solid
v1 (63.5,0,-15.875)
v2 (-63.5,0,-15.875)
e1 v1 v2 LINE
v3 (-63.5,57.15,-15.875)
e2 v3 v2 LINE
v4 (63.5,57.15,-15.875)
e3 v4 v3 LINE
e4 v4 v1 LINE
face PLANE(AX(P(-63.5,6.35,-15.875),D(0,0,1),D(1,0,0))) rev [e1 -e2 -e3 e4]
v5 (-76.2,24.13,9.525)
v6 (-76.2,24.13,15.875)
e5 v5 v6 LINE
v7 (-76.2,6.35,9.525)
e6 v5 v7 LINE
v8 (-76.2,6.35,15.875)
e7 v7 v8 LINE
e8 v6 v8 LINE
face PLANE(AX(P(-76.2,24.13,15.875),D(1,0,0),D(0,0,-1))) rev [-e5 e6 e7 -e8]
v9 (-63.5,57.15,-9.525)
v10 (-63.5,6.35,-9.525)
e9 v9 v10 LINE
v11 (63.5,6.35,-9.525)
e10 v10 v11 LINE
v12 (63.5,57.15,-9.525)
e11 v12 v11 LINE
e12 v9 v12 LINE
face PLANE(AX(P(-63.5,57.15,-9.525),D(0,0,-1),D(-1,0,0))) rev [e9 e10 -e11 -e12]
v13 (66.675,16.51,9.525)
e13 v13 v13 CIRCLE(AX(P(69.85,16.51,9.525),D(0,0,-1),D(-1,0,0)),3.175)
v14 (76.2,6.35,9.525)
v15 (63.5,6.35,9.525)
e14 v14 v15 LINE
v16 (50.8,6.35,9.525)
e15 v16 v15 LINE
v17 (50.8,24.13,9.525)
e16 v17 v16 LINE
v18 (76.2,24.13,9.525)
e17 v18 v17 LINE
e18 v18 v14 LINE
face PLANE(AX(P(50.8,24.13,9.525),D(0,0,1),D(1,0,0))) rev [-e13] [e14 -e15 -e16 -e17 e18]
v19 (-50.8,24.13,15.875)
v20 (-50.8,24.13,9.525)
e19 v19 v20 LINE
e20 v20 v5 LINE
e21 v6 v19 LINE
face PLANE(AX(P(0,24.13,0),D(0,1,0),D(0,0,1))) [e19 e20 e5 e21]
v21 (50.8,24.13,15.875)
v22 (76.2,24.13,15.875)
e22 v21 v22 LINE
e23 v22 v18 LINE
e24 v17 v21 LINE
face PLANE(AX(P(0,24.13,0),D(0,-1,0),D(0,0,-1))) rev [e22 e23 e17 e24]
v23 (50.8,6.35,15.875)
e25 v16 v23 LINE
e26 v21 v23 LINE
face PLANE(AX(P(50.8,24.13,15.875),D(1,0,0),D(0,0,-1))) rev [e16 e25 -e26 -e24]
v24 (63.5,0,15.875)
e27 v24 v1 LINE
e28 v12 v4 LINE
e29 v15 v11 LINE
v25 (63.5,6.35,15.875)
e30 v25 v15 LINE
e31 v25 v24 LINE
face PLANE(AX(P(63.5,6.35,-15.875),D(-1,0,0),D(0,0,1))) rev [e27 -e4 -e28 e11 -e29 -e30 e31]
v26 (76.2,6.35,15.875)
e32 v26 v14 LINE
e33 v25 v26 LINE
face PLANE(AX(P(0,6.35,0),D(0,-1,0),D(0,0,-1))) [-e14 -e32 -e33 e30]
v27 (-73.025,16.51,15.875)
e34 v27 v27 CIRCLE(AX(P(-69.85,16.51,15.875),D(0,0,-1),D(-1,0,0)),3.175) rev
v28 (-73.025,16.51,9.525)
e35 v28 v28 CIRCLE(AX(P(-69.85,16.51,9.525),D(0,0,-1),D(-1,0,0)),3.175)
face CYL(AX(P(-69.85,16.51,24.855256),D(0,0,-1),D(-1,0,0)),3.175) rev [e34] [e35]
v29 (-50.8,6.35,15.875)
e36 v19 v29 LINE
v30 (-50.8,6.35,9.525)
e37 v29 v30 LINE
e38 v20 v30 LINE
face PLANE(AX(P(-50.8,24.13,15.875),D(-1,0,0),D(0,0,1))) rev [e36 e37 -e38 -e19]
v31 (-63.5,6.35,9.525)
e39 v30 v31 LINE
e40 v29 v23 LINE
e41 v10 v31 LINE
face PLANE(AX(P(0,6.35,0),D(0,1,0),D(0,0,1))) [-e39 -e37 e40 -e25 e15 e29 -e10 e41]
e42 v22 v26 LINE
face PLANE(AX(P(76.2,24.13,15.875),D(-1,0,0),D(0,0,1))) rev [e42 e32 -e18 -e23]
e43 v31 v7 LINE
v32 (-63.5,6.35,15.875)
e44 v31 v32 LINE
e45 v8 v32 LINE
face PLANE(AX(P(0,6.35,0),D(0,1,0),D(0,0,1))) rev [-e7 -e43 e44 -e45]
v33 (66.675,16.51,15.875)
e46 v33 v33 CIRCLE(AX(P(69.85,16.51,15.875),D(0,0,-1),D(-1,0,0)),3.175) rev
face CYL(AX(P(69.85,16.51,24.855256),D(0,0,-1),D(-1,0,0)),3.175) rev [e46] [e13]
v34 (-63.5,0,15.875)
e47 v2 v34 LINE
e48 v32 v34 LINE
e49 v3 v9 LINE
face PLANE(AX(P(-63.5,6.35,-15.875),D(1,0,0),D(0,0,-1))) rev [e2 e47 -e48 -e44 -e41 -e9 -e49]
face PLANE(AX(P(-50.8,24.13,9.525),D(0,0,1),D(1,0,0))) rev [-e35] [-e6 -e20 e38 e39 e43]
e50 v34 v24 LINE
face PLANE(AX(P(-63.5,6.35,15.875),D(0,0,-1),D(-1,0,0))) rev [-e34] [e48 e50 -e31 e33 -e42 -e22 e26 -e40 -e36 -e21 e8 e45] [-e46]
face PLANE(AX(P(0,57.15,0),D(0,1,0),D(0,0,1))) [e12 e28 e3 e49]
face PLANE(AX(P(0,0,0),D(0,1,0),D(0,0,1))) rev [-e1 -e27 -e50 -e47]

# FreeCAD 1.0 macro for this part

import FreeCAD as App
import Part
import Sketcher
from FreeCAD import Vector
Q = App.Units.Quantity

doc = App.newDocument("Part")
body = doc.addObject("PartDesign::Body", "Body")

sketch1 = body.newObject("Sketcher::SketchObject", "Sketch")
sketch1.AttachmentSupport = (doc.getObject("XZ_Plane"), [""])
sketch1.MapMode = "FlatFace"
sketch1.addGeometry([
    Part.LineSegment(Vector(-63.5, -15.875, 0), Vector(-63.5, 15.875, 0)),
    Part.LineSegment(Vector(-63.5, 15.875, 0), Vector(63.5, 15.875, 0)),
    Part.LineSegment(Vector(63.5, 15.875, 0), Vector(63.5, -15.875, 0)),
    Part.LineSegment(Vector(63.5, -15.875, 0), Vector(-63.5, -15.875, 0)),
], False)
sketch1.addConstraint([
    Sketcher.Constraint("Coincident", 0, 2, 1, 1),
    Sketcher.Constraint("Coincident", 1, 2, 2, 1),
    Sketcher.Constraint("Coincident", 2, 2, 3, 1),
    Sketcher.Constraint("Coincident", 3, 2, 0, 1),
    Sketcher.Constraint("Vertical", 0),
    Sketcher.Constraint("Horizontal", 1),
    Sketcher.Constraint("Vertical", 2),
    Sketcher.Constraint("Horizontal", 3),
    Sketcher.Constraint("Symmetric", 0, 2, 2, 2, -1, 1),
    Sketcher.Constraint("DistanceX", 1, 1, 1, 2, Q("5 in")),
    Sketcher.Constraint("DistanceY", 0, 1, 0, 2, Q("1.25 in")),
])
pad1 = body.newObject("PartDesign::Pad", "Pad")
pad1.Profile = sketch1
pad1.Length = Q("0.25 in")
pad1.Reversed = True

sketch2 = body.newObject("Sketcher::SketchObject", "Sketch001")
sketch2.AttachmentSupport = (doc.getObject("XZ_Plane"), [""])
sketch2.MapMode = "FlatFace"
sketch2.AttachmentOffset = App.Placement(Vector(0, 0, -0.25 * 25.4), App.Rotation())
sketch2.addGeometry([
    Part.LineSegment(Vector(-76.2, 9.525, 0), Vector(-76.2, 15.875, 0)),
    Part.LineSegment(Vector(-76.2, 15.875, 0), Vector(-50.8, 15.875, 0)),
    Part.LineSegment(Vector(-50.8, 15.875, 0), Vector(-50.8, 9.525, 0)),
    Part.LineSegment(Vector(-50.8, 9.525, 0), Vector(-76.2, 9.525, 0)),
    Part.LineSegment(Vector(50.8, 9.525, 0), Vector(50.8, 15.875, 0)),
    Part.LineSegment(Vector(50.8, 15.875, 0), Vector(76.2, 15.875, 0)),
    Part.LineSegment(Vector(76.2, 15.875, 0), Vector(76.2, 9.525, 0)),
    Part.LineSegment(Vector(76.2, 9.525, 0), Vector(50.8, 9.525, 0)),
], False)
sketch2.addConstraint([
    Sketcher.Constraint("Coincident", 0, 2, 1, 1),
    Sketcher.Constraint("Coincident", 1, 2, 2, 1),
    Sketcher.Constraint("Coincident", 2, 2, 3, 1),
    Sketcher.Constraint("Coincident", 3, 2, 0, 1),
    Sketcher.Constraint("Coincident", 4, 2, 5, 1),
    Sketcher.Constraint("Coincident", 5, 2, 6, 1),
    Sketcher.Constraint("Coincident", 6, 2, 7, 1),
    Sketcher.Constraint("Coincident", 7, 2, 4, 1),
    Sketcher.Constraint("Vertical", 0),
    Sketcher.Constraint("Horizontal", 1),
    Sketcher.Constraint("Vertical", 2),
    Sketcher.Constraint("Horizontal", 3),
    Sketcher.Constraint("Vertical", 4),
    Sketcher.Constraint("Horizontal", 5),
    Sketcher.Constraint("Vertical", 6),
    Sketcher.Constraint("Horizontal", 7),
    Sketcher.Constraint("Symmetric", 1, 2, 4, 2, -2),
    Sketcher.Constraint("Symmetric", 3, 2, 6, 2, -2),
    Sketcher.Constraint("DistanceX", 1, 1, 1, 2, Q("1 in")),
    Sketcher.Constraint("DistanceX", 0, 2, -1, 1, Q("3 in")),
    Sketcher.Constraint("DistanceY", 0, 1, 0, 2, Q("0.25 in")),
    Sketcher.Constraint("DistanceY", -1, 1, 0, 2, Q("0.625 in")),
])
pad2 = body.newObject("PartDesign::Pad", "Pad001")
pad2.Profile = sketch2
pad2.Length = Q("0.7 in")
pad2.Reversed = True

sketch3 = body.newObject("Sketcher::SketchObject", "Sketch002")
sketch3.AttachmentSupport = (doc.getObject("XY_Plane"), [""])
sketch3.MapMode = "FlatFace"
sketch3.AttachmentOffset = App.Placement(Vector(0, 0, 0.375 * 25.4), App.Rotation())
sketch3.addGeometry([
    Part.Circle(Vector(-69.85, 16.51, 0), Vector(0, 0, 1), 3.175),
    Part.Circle(Vector(69.85, 16.51, 0), Vector(0, 0, 1), 3.175),
], False)
sketch3.addConstraint([
    Sketcher.Constraint("Equal", 0, 1),
    Sketcher.Constraint("Symmetric", 0, 3, 1, 3, -2),
    Sketcher.Constraint("Diameter", 0, Q("0.25 in")),
    Sketcher.Constraint("DistanceX", 0, 3, 1, 3, Q("5.5 in")),
    Sketcher.Constraint("DistanceY", -1, 1, 0, 3, Q("0.65 in")),
])
pocket1 = body.newObject("PartDesign::Pocket", "Pocket")
pocket1.Profile = sketch3
pocket1.Length = Q("0.25 in")
pocket1.Reversed = True

sketch4 = body.newObject("Sketcher::SketchObject", "Sketch003")
sketch4.AttachmentSupport = (doc.getObject("XZ_Plane"), [""])
sketch4.MapMode = "FlatFace"
sketch4.AttachmentOffset = App.Placement(Vector(0, 0, -0.25 * 25.4), App.Rotation())
sketch4.addGeometry([
    Part.LineSegment(Vector(-63.5, -15.875, 0), Vector(-63.5, -9.525, 0)),
    Part.LineSegment(Vector(-63.5, -9.525, 0), Vector(63.5, -9.525, 0)),
    Part.LineSegment(Vector(63.5, -9.525, 0), Vector(63.5, -15.875, 0)),
    Part.LineSegment(Vector(63.5, -15.875, 0), Vector(-63.5, -15.875, 0)),
], False)
sketch4.addConstraint([
    Sketcher.Constraint("Coincident", 0, 2, 1, 1),
    Sketcher.Constraint("Coincident", 1, 2, 2, 1),
    Sketcher.Constraint("Coincident", 2, 2, 3, 1),
    Sketcher.Constraint("Coincident", 3, 2, 0, 1),
    Sketcher.Constraint("Vertical", 0),
    Sketcher.Constraint("Horizontal", 1),
    Sketcher.Constraint("Vertical", 2),
    Sketcher.Constraint("Horizontal", 3),
    Sketcher.Constraint("DistanceX", 1, 1, 1, 2, Q("5 in")),
    Sketcher.Constraint("DistanceY", 0, 1, 0, 2, Q("0.25 in")),
    Sketcher.Constraint("DistanceX", 0, 2, -1, 1, Q("2.5 in")),
    Sketcher.Constraint("DistanceY", 0, 2, -1, 1, Q("0.375 in")),
])
pad3 = body.newObject("PartDesign::Pad", "Pad002")
pad3.Profile = sketch4
pad3.Length = Q("2 in")
pad3.Reversed = True

doc.recompute()
